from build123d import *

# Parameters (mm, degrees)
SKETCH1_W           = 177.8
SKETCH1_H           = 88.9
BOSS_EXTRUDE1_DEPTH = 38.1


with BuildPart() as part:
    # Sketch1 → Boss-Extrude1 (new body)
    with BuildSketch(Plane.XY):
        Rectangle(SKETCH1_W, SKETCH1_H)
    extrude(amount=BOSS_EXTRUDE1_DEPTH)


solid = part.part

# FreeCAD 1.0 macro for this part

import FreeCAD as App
import Part
import Sketcher

V = App.Vector
Q = App.Units.Quantity

doc = App.newDocument("Part")
params = doc.addObject("Spreadsheet::Sheet", "Params")
for row, (alias, value) in enumerate([
    ("sketch1_width", "7 in"),
    ("sketch1_height", "3.5 in"),
    ("pad1_length", "1.5 in"),
], start=1):
    params.set(f"A{row}", alias)
    params.set(f"B{row}", "=" + value)
    params.setAlias(f"B{row}", alias)

body = doc.addObject("PartDesign::Body", "Body")

sketch1 = body.newObject("Sketcher::SketchObject", "Sketch")
sketch1.AttachmentSupport = (doc.getObject("XY_Plane"), [""])
sketch1.MapMode = "FlatFace"
sketch1.addGeometry([
    Part.LineSegment(V(-89, 44, 0), V(-89, -44, 0)),
    Part.LineSegment(V(-89, -44, 0), V(89, -44, 0)),
    Part.LineSegment(V(89, -44, 0), V(89, 44, 0)),
    Part.LineSegment(V(89, 44, 0), V(-89, 44, 0)),
], False)
sketch1.addConstraint([
    Sketcher.Constraint("Coincident", 0, 2, 1, 1),
    Sketcher.Constraint("Coincident", 1, 2, 2, 1),
    Sketcher.Constraint("Coincident", 2, 2, 3, 1),
    Sketcher.Constraint("Coincident", 3, 2, 0, 1),
    Sketcher.Constraint("Vertical", 0),
    Sketcher.Constraint("Horizontal", 1),
    Sketcher.Constraint("Vertical", 2),
    Sketcher.Constraint("Horizontal", 3),
    Sketcher.Constraint("Symmetric", 0, 2, 2, 2, -1, 1),
    Sketcher.Constraint("DistanceX", 1, 1, 1, 2, Q("7 in")),
    Sketcher.Constraint("DistanceY", 0, 2, 0, 1, Q("3.5 in")),
])
sketch1.setExpression("Constraints[9]", "Params.sketch1_width")
sketch1.setExpression("Constraints[10]", "Params.sketch1_height")
pad1 = body.newObject("PartDesign::Pad", "Pad")
pad1.Profile = sketch1
pad1.setExpression("Length", "Params.pad1_length")

doc.recompute()
